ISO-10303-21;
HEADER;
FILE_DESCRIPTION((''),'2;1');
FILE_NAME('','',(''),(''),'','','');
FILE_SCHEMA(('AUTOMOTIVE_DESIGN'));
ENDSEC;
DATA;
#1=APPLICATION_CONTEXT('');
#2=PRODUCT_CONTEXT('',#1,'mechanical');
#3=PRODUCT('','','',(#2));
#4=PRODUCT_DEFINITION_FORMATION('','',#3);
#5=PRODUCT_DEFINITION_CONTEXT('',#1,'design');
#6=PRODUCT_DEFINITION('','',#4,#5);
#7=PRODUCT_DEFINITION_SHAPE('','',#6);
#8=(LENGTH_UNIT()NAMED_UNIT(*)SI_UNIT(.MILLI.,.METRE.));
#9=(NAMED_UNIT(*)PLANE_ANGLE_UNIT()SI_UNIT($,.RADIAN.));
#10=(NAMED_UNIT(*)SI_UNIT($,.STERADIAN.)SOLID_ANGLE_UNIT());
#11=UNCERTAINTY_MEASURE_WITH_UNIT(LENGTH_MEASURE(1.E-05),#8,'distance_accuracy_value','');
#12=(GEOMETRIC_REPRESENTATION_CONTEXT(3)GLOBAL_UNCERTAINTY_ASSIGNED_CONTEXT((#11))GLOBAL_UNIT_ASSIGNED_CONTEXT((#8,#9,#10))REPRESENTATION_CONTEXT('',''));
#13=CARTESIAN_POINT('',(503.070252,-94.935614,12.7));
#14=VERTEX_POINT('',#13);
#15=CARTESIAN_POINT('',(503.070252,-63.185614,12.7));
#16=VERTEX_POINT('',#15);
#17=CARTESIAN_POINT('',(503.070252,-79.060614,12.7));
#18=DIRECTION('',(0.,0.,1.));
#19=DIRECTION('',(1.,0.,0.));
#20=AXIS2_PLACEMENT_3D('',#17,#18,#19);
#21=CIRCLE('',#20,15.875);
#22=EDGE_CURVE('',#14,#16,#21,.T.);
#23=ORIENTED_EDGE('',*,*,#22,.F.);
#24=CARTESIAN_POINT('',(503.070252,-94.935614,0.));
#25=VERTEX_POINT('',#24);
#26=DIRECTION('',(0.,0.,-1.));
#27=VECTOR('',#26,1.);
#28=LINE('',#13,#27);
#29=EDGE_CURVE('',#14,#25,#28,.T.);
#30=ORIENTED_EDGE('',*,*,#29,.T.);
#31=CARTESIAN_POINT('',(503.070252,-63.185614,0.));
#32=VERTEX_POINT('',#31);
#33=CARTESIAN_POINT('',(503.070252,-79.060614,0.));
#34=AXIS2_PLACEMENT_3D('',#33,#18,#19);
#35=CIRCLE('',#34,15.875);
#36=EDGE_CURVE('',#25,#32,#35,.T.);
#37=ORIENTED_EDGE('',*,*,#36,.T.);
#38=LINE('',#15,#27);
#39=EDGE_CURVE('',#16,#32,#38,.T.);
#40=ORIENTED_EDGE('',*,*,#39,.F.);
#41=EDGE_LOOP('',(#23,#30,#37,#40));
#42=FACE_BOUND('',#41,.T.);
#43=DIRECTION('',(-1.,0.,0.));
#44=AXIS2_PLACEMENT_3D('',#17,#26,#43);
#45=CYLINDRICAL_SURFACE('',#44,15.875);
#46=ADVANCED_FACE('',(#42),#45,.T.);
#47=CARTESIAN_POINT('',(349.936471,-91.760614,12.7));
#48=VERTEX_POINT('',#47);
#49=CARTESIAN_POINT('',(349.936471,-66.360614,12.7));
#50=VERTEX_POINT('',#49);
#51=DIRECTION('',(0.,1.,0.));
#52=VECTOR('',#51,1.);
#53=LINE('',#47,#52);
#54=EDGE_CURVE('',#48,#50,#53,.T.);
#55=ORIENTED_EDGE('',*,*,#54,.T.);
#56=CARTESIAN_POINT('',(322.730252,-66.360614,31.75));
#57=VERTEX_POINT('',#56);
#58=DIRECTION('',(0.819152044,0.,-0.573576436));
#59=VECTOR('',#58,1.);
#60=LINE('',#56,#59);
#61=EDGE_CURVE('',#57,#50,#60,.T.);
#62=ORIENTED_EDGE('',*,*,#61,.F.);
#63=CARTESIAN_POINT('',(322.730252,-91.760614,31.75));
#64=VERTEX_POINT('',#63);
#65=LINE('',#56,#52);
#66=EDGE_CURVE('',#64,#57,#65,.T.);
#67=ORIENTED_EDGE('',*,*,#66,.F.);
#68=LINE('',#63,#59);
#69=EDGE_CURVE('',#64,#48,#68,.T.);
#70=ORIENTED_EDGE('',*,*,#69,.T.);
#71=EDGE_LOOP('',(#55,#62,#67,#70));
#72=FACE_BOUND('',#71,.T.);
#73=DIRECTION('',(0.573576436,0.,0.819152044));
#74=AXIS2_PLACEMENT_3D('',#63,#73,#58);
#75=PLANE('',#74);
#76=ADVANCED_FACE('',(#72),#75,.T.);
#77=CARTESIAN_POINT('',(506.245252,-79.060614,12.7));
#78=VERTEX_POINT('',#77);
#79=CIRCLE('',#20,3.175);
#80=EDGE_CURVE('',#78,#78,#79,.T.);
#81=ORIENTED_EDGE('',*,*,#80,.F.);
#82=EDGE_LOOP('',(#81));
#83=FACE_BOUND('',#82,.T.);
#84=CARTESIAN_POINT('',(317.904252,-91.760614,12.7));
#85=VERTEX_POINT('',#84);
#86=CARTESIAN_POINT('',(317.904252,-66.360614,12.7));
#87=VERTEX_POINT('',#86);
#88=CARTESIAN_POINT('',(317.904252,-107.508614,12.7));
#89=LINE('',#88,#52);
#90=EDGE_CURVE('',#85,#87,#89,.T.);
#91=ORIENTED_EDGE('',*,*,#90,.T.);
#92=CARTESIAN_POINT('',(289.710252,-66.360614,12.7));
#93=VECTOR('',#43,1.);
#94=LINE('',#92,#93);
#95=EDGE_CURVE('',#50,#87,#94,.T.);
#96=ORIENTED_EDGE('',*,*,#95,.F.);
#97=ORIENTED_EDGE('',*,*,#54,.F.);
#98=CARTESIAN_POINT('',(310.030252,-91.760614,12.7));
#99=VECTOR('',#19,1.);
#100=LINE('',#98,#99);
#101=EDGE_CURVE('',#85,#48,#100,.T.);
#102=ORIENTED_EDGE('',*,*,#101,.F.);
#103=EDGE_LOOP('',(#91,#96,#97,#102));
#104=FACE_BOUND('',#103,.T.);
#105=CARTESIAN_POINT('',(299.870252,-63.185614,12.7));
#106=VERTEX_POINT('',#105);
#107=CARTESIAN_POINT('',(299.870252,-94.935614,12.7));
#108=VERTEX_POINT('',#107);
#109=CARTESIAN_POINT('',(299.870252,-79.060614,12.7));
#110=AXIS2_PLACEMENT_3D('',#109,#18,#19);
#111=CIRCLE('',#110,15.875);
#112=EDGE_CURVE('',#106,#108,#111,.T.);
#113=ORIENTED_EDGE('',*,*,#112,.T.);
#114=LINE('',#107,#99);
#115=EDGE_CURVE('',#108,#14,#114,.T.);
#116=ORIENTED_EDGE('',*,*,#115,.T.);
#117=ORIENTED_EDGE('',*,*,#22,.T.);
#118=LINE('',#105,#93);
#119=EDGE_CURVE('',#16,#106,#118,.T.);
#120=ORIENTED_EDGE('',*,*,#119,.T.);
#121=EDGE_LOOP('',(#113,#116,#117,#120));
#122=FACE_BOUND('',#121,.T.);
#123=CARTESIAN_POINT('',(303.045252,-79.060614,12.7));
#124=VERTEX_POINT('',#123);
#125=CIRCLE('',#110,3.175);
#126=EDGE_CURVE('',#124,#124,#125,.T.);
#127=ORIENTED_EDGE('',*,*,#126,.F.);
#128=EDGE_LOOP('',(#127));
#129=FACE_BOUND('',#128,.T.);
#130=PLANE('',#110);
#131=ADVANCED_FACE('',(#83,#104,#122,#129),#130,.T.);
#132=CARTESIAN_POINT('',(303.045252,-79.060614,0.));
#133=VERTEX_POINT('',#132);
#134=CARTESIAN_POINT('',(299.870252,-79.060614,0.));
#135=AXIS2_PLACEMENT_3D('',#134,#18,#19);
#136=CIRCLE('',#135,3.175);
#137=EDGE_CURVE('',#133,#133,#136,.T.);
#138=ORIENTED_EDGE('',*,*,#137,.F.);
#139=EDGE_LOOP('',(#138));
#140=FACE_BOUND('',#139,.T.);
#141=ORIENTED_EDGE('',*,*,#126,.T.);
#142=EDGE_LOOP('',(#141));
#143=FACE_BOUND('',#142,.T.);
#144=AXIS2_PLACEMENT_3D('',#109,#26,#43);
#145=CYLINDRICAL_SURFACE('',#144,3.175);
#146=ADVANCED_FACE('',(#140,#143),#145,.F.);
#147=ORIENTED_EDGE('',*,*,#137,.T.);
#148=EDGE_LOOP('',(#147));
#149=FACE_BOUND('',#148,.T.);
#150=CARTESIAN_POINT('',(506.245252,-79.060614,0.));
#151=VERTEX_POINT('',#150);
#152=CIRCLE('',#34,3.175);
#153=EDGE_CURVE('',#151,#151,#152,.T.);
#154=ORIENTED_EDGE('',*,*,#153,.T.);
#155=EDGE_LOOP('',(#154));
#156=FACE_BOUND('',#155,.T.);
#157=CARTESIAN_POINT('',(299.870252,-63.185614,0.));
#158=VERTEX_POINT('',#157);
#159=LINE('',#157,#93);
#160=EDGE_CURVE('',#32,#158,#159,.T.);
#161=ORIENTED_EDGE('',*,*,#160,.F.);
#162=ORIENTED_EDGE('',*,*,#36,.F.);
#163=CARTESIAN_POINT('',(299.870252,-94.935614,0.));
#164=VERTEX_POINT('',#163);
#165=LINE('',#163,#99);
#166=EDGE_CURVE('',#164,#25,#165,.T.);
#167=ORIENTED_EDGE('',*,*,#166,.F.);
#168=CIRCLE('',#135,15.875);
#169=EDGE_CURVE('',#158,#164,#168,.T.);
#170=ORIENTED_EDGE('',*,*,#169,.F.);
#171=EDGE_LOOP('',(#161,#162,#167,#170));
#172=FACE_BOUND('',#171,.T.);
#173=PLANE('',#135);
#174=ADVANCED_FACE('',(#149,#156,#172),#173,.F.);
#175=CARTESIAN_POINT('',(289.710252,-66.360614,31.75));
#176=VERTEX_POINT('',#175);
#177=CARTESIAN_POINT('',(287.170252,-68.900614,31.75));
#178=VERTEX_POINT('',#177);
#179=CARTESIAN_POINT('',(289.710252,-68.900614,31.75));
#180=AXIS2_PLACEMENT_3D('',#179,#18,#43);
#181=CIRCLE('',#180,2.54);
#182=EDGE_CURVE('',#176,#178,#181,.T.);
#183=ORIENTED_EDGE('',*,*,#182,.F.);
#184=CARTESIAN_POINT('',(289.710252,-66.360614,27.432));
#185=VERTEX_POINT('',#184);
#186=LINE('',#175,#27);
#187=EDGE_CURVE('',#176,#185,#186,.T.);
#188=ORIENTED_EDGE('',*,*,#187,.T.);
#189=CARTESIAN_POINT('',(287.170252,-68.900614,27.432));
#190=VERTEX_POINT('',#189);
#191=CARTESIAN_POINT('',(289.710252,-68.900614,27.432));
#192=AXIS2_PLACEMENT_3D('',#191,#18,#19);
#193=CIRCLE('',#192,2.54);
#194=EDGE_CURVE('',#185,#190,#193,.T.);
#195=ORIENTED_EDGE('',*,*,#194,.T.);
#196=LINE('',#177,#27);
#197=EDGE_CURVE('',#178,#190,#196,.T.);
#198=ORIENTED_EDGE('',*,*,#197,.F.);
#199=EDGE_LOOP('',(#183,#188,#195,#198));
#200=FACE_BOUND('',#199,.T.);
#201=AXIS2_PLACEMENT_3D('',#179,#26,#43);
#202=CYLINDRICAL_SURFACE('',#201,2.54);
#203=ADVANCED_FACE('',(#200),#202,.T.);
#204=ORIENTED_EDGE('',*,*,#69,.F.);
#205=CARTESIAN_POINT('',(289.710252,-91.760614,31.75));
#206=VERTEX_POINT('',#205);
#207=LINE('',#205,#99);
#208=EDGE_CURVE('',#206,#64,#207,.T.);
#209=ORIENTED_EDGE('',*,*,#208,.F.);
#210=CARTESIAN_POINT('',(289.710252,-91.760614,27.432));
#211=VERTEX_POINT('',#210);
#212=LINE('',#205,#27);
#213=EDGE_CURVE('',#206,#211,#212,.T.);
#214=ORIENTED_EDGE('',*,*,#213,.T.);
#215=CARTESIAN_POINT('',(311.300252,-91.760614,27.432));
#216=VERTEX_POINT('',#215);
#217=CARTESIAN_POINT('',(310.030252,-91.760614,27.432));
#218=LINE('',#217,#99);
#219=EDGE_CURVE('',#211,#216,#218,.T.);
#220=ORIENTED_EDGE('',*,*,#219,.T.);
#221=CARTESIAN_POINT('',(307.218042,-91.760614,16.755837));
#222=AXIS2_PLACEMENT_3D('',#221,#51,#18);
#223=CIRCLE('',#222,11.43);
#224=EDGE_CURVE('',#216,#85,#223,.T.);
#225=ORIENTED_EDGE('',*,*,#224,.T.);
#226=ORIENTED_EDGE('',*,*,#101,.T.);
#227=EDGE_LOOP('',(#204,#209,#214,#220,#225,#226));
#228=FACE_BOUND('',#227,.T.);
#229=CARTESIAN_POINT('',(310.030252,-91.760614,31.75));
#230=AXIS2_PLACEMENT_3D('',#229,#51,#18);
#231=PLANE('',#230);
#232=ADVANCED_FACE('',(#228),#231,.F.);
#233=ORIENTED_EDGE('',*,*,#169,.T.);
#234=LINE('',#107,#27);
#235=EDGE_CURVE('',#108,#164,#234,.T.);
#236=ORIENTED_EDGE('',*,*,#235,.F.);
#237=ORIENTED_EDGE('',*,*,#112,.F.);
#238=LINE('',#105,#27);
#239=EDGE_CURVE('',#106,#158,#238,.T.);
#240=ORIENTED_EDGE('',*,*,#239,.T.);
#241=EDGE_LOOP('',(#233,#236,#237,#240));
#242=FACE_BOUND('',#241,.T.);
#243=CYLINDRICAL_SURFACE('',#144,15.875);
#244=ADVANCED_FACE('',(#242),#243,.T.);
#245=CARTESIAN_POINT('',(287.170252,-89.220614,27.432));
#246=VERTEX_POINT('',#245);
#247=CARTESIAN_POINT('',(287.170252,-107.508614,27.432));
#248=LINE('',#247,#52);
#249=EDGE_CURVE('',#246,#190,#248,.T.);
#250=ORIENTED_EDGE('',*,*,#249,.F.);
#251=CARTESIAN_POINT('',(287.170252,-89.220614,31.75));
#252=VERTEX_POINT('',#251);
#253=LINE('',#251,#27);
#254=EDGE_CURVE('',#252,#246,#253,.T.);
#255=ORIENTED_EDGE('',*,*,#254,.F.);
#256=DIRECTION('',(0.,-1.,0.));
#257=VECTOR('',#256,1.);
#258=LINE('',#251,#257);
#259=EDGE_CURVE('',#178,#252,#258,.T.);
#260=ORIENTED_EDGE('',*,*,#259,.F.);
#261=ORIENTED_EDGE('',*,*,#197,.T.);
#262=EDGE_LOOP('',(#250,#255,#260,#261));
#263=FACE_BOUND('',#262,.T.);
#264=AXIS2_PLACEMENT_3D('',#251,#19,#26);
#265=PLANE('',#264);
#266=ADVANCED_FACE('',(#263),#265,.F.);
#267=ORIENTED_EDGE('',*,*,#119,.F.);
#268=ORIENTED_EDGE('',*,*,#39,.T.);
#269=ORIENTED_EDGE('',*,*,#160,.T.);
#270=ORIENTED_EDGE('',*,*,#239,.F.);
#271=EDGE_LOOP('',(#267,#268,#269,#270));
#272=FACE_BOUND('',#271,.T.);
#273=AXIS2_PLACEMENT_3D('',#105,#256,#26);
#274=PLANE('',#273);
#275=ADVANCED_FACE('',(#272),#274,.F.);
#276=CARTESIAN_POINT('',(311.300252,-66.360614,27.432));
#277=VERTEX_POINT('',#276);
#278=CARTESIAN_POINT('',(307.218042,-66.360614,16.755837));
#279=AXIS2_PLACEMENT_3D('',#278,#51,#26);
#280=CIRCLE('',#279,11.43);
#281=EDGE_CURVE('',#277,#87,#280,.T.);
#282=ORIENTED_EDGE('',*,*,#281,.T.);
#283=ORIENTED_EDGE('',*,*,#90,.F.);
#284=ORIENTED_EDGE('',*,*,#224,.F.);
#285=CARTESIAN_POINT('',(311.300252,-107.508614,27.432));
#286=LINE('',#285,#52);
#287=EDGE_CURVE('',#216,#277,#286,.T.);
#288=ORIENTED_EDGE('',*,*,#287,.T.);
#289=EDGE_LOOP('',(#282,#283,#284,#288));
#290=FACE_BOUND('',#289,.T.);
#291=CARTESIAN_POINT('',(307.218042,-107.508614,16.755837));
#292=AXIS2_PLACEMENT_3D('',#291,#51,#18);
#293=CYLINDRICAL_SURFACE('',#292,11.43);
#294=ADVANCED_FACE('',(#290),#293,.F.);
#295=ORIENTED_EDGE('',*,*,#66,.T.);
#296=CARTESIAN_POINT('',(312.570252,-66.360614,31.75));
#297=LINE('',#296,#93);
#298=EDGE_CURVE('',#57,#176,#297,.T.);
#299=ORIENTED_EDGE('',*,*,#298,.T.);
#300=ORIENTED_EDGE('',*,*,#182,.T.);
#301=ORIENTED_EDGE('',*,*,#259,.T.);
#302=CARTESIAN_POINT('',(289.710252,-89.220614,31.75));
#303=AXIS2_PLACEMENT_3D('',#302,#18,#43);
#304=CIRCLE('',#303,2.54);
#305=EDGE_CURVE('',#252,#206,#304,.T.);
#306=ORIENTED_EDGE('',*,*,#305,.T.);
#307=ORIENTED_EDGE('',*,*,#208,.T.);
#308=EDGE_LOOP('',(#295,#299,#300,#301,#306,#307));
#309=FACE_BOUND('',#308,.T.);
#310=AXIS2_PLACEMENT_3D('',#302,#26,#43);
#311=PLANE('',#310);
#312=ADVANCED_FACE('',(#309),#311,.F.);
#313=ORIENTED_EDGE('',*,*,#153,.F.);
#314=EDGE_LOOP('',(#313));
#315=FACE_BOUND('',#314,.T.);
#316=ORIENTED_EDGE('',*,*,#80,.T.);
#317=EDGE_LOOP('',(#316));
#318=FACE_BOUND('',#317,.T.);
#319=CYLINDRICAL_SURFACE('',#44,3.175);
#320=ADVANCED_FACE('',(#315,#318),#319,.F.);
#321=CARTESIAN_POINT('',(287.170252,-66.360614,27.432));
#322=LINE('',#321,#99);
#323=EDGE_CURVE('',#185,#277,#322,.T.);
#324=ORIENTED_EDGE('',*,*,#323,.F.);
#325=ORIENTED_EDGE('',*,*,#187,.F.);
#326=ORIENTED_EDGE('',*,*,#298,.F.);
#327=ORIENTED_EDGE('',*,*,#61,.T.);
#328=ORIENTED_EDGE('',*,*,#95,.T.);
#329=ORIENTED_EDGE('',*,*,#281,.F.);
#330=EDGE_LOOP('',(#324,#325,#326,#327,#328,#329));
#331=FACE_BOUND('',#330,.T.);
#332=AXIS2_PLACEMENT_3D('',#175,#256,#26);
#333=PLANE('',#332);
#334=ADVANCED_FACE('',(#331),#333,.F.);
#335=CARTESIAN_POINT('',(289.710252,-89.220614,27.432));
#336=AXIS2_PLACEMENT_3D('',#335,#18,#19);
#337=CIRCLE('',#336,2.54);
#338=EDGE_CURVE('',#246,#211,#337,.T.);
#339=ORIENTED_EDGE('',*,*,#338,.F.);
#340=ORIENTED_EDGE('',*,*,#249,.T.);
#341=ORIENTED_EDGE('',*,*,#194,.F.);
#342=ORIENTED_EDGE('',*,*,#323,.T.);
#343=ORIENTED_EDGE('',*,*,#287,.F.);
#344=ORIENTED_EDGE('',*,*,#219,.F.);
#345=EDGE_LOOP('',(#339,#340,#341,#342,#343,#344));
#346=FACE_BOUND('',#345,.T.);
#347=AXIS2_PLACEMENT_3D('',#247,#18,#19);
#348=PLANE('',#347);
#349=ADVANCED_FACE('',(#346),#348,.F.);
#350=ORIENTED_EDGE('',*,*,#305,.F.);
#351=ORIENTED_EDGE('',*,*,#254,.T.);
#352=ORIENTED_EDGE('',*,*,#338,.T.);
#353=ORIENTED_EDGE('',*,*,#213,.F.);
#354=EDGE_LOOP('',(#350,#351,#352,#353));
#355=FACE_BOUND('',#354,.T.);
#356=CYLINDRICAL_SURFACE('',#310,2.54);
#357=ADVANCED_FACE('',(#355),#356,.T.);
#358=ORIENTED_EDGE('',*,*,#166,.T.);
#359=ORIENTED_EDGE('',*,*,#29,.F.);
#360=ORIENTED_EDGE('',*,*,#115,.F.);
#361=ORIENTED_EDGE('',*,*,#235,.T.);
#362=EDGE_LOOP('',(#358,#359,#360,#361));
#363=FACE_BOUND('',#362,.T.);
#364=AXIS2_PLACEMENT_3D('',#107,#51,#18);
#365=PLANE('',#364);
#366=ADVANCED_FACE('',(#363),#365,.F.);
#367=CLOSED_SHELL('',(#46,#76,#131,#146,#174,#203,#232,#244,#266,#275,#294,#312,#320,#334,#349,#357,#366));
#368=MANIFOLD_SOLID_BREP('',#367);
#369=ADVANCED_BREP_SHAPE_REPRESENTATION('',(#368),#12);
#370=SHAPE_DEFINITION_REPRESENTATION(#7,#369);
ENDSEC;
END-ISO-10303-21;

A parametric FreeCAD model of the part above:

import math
import FreeCAD as App
import Part
import Sketcher
from FreeCAD import Vector
Q = App.Units.Quantity


def add_polygon(sketch, points):
    """Adds a closed chain of lines whose ends are joined by coincident constraints."""
    first, n = sketch.GeometryCount, len(points)
    for a, b in zip(points, points[1:] + points[:1]):
        sketch.addGeometry(Part.LineSegment(App.Vector(*a, 0), App.Vector(*b, 0)), False)
    for i in range(n):
        sketch.addConstraint(Sketcher.Constraint("Coincident", first + i, 2, first + (i + 1) % n, 1))

doc = App.newDocument("Part")
body = doc.addObject("PartDesign::Body", "Body")

# Sketch on XY plane
sketch1 = doc.addObject("Sketcher::SketchObject", "Sketch")
body.addObject(sketch1)
sketch1.AttachmentSupport = (doc.XY_Plane, [""])
sketch1.MapMode = "FlatFace"
sketch1.addGeometry(Part.LineSegment(Vector(503.1, -63.2, 0), Vector(299.9, -63.2, 0)), False)
sketch1.addGeometry(Part.ArcOfCircle(Part.Circle(Vector(299.9, -79.1, 0), Vector(0, 0, 1), 15.9), math.radians(90), math.radians(270)), False)
sketch1.addGeometry(Part.LineSegment(Vector(299.9, -94.9, 0), Vector(503.1, -94.9, 0)), False)
sketch1.addGeometry(Part.ArcOfCircle(Part.Circle(Vector(503.1, -79.1, 0), Vector(0, 0, 1), 15.9), math.radians(-90), math.radians(90)), False)
sketch1.addGeometry(Part.Circle(Vector(503.1, -79.1, 0), Vector(0, 0, 1), 3.2), False)
sketch1.addGeometry(Part.Circle(Vector(299.9, -79.1, 0), Vector(0, 0, 1), 3.2), False)
sketch1.addConstraint(Sketcher.Constraint("Tangent", 0, 2, 1, 1))
sketch1.addConstraint(Sketcher.Constraint("Tangent", 1, 2, 2, 1))
sketch1.addConstraint(Sketcher.Constraint("Tangent", 2, 2, 3, 1))
sketch1.addConstraint(Sketcher.Constraint("Tangent", 3, 2, 0, 1))
sketch1.addConstraint(Sketcher.Constraint("Horizontal", 0))
sketch1.addConstraint(Sketcher.Constraint("Horizontal", 2))
sketch1.addConstraint(Sketcher.Constraint("Coincident", 4, 3, 3, 3))
sketch1.addConstraint(Sketcher.Constraint("Coincident", 5, 3, 1, 3))
sketch1.addConstraint(Sketcher.Constraint("Equal", 4, 5))
sketch1.addConstraint(Sketcher.Constraint("Diameter", 4, Q("0.25 in")))
sketch1.addConstraint(Sketcher.Constraint("DistanceX", 0, 2, 0, 1, Q("8 in")))
sketch1.addConstraint(Sketcher.Constraint("Radius", 1, Q("0.625 in")))
sketch1.addConstraint(Sketcher.Constraint("DistanceX", -1, 1, 1, 3, 299.870252))
sketch1.addConstraint(Sketcher.Constraint("DistanceY", 1, 3, -1, 1, 79.060614))
pad1 = doc.addObject("PartDesign::Pad", "Pad")
body.addObject(pad1)
pad1.Profile = sketch1
pad1.Length = Q("0.5 in")

# Sketch on XY plane
sketch2 = doc.addObject("Sketcher::SketchObject", "Sketch001")
body.addObject(sketch2)
sketch2.AttachmentSupport = (doc.XY_Plane, [""])
sketch2.MapMode = "FlatFace"
sketch2.AttachmentOffset = App.Placement(Vector(0, 0, 0.5 * 25.4), App.Rotation())
sketch2.addGeometry(Part.LineSegment(Vector(322.7, -91.8, 0), Vector(322.7, -66.4, 0)), False)
sketch2.addGeometry(Part.LineSegment(Vector(322.7, -66.4, 0), Vector(289.7, -66.4, 0)), False)
sketch2.addGeometry(Part.ArcOfCircle(Part.Circle(Vector(289.7, -68.9, 0), Vector(0, 0, 1), 2.5), math.radians(90), math.radians(180)), False)
sketch2.addGeometry(Part.LineSegment(Vector(287.2, -68.9, 0), Vector(287.2, -89.2, 0)), False)
sketch2.addGeometry(Part.ArcOfCircle(Part.Circle(Vector(289.7, -89.2, 0), Vector(0, 0, 1), 2.5), math.radians(-180), math.radians(-90)), False)
sketch2.addGeometry(Part.LineSegment(Vector(289.7, -91.8, 0), Vector(322.7, -91.8, 0)), False)
sketch2.addConstraint(Sketcher.Constraint("Coincident", 0, 2, 1, 1))
sketch2.addConstraint(Sketcher.Constraint("Tangent", 1, 2, 2, 1))
sketch2.addConstraint(Sketcher.Constraint("Tangent", 2, 2, 3, 1))
sketch2.addConstraint(Sketcher.Constraint("Tangent", 3, 2, 4, 1))
sketch2.addConstraint(Sketcher.Constraint("Tangent", 4, 2, 5, 1))
sketch2.addConstraint(Sketcher.Constraint("Coincident", 5, 2, 0, 1))
sketch2.addConstraint(Sketcher.Constraint("Vertical", 0))
sketch2.addConstraint(Sketcher.Constraint("Horizontal", 1))
sketch2.addConstraint(Sketcher.Constraint("Vertical", 3))
sketch2.addConstraint(Sketcher.Constraint("Horizontal", 5))
sketch2.addConstraint(Sketcher.Constraint("Equal", 2, 4))
sketch2.addConstraint(Sketcher.Constraint("Radius", 2, Q("0.1 in")))
sketch2.addConstraint(Sketcher.Constraint("DistanceY", 0, 1, 0, 2, Q("1 in")))
sketch2.addConstraint(Sketcher.Constraint("DistanceX", 1, 2, 1, 1, Q("1.3 in")))
sketch2.addConstraint(Sketcher.Constraint("DistanceX", -1, 1, 2, 3, 289.710252))
sketch2.addConstraint(Sketcher.Constraint("DistanceY", 2, 3, -1, 1, 68.900614))
pad2 = doc.addObject("PartDesign::Pad", "Pad001")
body.addObject(pad2)
pad2.Profile = sketch2
pad2.Length = Q("0.75 in")

# Sketch on XZ plane
sketch3 = doc.addObject("Sketcher::SketchObject", "Sketch002")
body.addObject(sketch3)
sketch3.AttachmentSupport = (doc.XZ_Plane, [""])
sketch3.MapMode = "FlatFace"
sketch3.AttachmentOffset = App.Placement(Vector(0, 0, 66.360614), App.Rotation())
sketch3.addGeometry(Part.LineSegment(Vector(318, 13, 0), Vector(287, 13, 0)), False)
sketch3.addGeometry(Part.LineSegment(Vector(287, 13, 0), Vector(287, 27, 0)), False)
sketch3.addGeometry(Part.LineSegment(Vector(287, 27, 0), Vector(311, 27, 0)), False)
sketch3.addGeometry(Part.ArcOfCircle(Part.Circle(Vector(307, 17, 0), Vector(0, 0, 1), 11), math.radians(-21), math.radians(69)), False)
sketch3.addConstraint(Sketcher.Constraint("Coincident", 0, 2, 1, 1))
sketch3.addConstraint(Sketcher.Constraint("Coincident", 1, 2, 2, 1))
sketch3.addConstraint(Sketcher.Constraint("Coincident", 2, 2, 3, 2))
sketch3.addConstraint(Sketcher.Constraint("Coincident", 3, 1, 0, 1))
sketch3.addConstraint(Sketcher.Constraint("Horizontal", 0))
sketch3.addConstraint(Sketcher.Constraint("Vertical", 1))
sketch3.addConstraint(Sketcher.Constraint("Horizontal", 2))
sketch3.addConstraint(Sketcher.Constraint("Radius", 3, Q("0.45 in")))
sketch3.addConstraint(Sketcher.Constraint("DistanceX", 0, 2, 0, 1, Q("1.21 in")))
sketch3.addConstraint(Sketcher.Constraint("DistanceX", 2, 1, 2, 2, Q("0.95 in")))
sketch3.addConstraint(Sketcher.Constraint("DistanceY", 1, 1, 1, 2, Q("0.58 in")))
sketch3.addConstraint(Sketcher.Constraint("DistanceY", -1, 1, 0, 2, Q("0.5 in")))
sketch3.addConstraint(Sketcher.Constraint("DistanceX", -1, 1, 3, 3, 307.218042))
pocket1 = doc.addObject("PartDesign::Pocket", "Pocket")
body.addObject(pocket1)
pocket1.Profile = sketch3
pocket1.Length = Q("1.62 in")
pocket1.Reversed = True

# Sketch on XZ plane
sketch4 = doc.addObject("Sketcher::SketchObject", "Sketch003")
body.addObject(sketch4)
sketch4.AttachmentSupport = (doc.XZ_Plane, [""])
sketch4.MapMode = "FlatFace"
sketch4.AttachmentOffset = App.Placement(Vector(0, 0, 66.360614), App.Rotation())
add_polygon(sketch4, [(323, 32), (350, 13), (323, 13)])  # lines 0-2
sketch4.addConstraint(Sketcher.Constraint("Horizontal", 1))
sketch4.addConstraint(Sketcher.Constraint("Vertical", 2))
sketch4.addConstraint(Sketcher.Constraint("Angle", 0, Q("-35 deg")))
sketch4.addConstraint(Sketcher.Constraint("DistanceY", 2, 1, 2, 2, Q("0.75 in")))
sketch4.addConstraint(Sketcher.Constraint("DistanceY", -1, 1, 0, 2, Q("0.5 in")))
sketch4.addConstraint(Sketcher.Constraint("DistanceX", -1, 1, 0, 2, 349.936471))
pad3 = doc.addObject("PartDesign::Pad", "Pad002")
body.addObject(pad3)
pad3.Profile = sketch4
pad3.Length = Q("1 in")

doc.recompute()
